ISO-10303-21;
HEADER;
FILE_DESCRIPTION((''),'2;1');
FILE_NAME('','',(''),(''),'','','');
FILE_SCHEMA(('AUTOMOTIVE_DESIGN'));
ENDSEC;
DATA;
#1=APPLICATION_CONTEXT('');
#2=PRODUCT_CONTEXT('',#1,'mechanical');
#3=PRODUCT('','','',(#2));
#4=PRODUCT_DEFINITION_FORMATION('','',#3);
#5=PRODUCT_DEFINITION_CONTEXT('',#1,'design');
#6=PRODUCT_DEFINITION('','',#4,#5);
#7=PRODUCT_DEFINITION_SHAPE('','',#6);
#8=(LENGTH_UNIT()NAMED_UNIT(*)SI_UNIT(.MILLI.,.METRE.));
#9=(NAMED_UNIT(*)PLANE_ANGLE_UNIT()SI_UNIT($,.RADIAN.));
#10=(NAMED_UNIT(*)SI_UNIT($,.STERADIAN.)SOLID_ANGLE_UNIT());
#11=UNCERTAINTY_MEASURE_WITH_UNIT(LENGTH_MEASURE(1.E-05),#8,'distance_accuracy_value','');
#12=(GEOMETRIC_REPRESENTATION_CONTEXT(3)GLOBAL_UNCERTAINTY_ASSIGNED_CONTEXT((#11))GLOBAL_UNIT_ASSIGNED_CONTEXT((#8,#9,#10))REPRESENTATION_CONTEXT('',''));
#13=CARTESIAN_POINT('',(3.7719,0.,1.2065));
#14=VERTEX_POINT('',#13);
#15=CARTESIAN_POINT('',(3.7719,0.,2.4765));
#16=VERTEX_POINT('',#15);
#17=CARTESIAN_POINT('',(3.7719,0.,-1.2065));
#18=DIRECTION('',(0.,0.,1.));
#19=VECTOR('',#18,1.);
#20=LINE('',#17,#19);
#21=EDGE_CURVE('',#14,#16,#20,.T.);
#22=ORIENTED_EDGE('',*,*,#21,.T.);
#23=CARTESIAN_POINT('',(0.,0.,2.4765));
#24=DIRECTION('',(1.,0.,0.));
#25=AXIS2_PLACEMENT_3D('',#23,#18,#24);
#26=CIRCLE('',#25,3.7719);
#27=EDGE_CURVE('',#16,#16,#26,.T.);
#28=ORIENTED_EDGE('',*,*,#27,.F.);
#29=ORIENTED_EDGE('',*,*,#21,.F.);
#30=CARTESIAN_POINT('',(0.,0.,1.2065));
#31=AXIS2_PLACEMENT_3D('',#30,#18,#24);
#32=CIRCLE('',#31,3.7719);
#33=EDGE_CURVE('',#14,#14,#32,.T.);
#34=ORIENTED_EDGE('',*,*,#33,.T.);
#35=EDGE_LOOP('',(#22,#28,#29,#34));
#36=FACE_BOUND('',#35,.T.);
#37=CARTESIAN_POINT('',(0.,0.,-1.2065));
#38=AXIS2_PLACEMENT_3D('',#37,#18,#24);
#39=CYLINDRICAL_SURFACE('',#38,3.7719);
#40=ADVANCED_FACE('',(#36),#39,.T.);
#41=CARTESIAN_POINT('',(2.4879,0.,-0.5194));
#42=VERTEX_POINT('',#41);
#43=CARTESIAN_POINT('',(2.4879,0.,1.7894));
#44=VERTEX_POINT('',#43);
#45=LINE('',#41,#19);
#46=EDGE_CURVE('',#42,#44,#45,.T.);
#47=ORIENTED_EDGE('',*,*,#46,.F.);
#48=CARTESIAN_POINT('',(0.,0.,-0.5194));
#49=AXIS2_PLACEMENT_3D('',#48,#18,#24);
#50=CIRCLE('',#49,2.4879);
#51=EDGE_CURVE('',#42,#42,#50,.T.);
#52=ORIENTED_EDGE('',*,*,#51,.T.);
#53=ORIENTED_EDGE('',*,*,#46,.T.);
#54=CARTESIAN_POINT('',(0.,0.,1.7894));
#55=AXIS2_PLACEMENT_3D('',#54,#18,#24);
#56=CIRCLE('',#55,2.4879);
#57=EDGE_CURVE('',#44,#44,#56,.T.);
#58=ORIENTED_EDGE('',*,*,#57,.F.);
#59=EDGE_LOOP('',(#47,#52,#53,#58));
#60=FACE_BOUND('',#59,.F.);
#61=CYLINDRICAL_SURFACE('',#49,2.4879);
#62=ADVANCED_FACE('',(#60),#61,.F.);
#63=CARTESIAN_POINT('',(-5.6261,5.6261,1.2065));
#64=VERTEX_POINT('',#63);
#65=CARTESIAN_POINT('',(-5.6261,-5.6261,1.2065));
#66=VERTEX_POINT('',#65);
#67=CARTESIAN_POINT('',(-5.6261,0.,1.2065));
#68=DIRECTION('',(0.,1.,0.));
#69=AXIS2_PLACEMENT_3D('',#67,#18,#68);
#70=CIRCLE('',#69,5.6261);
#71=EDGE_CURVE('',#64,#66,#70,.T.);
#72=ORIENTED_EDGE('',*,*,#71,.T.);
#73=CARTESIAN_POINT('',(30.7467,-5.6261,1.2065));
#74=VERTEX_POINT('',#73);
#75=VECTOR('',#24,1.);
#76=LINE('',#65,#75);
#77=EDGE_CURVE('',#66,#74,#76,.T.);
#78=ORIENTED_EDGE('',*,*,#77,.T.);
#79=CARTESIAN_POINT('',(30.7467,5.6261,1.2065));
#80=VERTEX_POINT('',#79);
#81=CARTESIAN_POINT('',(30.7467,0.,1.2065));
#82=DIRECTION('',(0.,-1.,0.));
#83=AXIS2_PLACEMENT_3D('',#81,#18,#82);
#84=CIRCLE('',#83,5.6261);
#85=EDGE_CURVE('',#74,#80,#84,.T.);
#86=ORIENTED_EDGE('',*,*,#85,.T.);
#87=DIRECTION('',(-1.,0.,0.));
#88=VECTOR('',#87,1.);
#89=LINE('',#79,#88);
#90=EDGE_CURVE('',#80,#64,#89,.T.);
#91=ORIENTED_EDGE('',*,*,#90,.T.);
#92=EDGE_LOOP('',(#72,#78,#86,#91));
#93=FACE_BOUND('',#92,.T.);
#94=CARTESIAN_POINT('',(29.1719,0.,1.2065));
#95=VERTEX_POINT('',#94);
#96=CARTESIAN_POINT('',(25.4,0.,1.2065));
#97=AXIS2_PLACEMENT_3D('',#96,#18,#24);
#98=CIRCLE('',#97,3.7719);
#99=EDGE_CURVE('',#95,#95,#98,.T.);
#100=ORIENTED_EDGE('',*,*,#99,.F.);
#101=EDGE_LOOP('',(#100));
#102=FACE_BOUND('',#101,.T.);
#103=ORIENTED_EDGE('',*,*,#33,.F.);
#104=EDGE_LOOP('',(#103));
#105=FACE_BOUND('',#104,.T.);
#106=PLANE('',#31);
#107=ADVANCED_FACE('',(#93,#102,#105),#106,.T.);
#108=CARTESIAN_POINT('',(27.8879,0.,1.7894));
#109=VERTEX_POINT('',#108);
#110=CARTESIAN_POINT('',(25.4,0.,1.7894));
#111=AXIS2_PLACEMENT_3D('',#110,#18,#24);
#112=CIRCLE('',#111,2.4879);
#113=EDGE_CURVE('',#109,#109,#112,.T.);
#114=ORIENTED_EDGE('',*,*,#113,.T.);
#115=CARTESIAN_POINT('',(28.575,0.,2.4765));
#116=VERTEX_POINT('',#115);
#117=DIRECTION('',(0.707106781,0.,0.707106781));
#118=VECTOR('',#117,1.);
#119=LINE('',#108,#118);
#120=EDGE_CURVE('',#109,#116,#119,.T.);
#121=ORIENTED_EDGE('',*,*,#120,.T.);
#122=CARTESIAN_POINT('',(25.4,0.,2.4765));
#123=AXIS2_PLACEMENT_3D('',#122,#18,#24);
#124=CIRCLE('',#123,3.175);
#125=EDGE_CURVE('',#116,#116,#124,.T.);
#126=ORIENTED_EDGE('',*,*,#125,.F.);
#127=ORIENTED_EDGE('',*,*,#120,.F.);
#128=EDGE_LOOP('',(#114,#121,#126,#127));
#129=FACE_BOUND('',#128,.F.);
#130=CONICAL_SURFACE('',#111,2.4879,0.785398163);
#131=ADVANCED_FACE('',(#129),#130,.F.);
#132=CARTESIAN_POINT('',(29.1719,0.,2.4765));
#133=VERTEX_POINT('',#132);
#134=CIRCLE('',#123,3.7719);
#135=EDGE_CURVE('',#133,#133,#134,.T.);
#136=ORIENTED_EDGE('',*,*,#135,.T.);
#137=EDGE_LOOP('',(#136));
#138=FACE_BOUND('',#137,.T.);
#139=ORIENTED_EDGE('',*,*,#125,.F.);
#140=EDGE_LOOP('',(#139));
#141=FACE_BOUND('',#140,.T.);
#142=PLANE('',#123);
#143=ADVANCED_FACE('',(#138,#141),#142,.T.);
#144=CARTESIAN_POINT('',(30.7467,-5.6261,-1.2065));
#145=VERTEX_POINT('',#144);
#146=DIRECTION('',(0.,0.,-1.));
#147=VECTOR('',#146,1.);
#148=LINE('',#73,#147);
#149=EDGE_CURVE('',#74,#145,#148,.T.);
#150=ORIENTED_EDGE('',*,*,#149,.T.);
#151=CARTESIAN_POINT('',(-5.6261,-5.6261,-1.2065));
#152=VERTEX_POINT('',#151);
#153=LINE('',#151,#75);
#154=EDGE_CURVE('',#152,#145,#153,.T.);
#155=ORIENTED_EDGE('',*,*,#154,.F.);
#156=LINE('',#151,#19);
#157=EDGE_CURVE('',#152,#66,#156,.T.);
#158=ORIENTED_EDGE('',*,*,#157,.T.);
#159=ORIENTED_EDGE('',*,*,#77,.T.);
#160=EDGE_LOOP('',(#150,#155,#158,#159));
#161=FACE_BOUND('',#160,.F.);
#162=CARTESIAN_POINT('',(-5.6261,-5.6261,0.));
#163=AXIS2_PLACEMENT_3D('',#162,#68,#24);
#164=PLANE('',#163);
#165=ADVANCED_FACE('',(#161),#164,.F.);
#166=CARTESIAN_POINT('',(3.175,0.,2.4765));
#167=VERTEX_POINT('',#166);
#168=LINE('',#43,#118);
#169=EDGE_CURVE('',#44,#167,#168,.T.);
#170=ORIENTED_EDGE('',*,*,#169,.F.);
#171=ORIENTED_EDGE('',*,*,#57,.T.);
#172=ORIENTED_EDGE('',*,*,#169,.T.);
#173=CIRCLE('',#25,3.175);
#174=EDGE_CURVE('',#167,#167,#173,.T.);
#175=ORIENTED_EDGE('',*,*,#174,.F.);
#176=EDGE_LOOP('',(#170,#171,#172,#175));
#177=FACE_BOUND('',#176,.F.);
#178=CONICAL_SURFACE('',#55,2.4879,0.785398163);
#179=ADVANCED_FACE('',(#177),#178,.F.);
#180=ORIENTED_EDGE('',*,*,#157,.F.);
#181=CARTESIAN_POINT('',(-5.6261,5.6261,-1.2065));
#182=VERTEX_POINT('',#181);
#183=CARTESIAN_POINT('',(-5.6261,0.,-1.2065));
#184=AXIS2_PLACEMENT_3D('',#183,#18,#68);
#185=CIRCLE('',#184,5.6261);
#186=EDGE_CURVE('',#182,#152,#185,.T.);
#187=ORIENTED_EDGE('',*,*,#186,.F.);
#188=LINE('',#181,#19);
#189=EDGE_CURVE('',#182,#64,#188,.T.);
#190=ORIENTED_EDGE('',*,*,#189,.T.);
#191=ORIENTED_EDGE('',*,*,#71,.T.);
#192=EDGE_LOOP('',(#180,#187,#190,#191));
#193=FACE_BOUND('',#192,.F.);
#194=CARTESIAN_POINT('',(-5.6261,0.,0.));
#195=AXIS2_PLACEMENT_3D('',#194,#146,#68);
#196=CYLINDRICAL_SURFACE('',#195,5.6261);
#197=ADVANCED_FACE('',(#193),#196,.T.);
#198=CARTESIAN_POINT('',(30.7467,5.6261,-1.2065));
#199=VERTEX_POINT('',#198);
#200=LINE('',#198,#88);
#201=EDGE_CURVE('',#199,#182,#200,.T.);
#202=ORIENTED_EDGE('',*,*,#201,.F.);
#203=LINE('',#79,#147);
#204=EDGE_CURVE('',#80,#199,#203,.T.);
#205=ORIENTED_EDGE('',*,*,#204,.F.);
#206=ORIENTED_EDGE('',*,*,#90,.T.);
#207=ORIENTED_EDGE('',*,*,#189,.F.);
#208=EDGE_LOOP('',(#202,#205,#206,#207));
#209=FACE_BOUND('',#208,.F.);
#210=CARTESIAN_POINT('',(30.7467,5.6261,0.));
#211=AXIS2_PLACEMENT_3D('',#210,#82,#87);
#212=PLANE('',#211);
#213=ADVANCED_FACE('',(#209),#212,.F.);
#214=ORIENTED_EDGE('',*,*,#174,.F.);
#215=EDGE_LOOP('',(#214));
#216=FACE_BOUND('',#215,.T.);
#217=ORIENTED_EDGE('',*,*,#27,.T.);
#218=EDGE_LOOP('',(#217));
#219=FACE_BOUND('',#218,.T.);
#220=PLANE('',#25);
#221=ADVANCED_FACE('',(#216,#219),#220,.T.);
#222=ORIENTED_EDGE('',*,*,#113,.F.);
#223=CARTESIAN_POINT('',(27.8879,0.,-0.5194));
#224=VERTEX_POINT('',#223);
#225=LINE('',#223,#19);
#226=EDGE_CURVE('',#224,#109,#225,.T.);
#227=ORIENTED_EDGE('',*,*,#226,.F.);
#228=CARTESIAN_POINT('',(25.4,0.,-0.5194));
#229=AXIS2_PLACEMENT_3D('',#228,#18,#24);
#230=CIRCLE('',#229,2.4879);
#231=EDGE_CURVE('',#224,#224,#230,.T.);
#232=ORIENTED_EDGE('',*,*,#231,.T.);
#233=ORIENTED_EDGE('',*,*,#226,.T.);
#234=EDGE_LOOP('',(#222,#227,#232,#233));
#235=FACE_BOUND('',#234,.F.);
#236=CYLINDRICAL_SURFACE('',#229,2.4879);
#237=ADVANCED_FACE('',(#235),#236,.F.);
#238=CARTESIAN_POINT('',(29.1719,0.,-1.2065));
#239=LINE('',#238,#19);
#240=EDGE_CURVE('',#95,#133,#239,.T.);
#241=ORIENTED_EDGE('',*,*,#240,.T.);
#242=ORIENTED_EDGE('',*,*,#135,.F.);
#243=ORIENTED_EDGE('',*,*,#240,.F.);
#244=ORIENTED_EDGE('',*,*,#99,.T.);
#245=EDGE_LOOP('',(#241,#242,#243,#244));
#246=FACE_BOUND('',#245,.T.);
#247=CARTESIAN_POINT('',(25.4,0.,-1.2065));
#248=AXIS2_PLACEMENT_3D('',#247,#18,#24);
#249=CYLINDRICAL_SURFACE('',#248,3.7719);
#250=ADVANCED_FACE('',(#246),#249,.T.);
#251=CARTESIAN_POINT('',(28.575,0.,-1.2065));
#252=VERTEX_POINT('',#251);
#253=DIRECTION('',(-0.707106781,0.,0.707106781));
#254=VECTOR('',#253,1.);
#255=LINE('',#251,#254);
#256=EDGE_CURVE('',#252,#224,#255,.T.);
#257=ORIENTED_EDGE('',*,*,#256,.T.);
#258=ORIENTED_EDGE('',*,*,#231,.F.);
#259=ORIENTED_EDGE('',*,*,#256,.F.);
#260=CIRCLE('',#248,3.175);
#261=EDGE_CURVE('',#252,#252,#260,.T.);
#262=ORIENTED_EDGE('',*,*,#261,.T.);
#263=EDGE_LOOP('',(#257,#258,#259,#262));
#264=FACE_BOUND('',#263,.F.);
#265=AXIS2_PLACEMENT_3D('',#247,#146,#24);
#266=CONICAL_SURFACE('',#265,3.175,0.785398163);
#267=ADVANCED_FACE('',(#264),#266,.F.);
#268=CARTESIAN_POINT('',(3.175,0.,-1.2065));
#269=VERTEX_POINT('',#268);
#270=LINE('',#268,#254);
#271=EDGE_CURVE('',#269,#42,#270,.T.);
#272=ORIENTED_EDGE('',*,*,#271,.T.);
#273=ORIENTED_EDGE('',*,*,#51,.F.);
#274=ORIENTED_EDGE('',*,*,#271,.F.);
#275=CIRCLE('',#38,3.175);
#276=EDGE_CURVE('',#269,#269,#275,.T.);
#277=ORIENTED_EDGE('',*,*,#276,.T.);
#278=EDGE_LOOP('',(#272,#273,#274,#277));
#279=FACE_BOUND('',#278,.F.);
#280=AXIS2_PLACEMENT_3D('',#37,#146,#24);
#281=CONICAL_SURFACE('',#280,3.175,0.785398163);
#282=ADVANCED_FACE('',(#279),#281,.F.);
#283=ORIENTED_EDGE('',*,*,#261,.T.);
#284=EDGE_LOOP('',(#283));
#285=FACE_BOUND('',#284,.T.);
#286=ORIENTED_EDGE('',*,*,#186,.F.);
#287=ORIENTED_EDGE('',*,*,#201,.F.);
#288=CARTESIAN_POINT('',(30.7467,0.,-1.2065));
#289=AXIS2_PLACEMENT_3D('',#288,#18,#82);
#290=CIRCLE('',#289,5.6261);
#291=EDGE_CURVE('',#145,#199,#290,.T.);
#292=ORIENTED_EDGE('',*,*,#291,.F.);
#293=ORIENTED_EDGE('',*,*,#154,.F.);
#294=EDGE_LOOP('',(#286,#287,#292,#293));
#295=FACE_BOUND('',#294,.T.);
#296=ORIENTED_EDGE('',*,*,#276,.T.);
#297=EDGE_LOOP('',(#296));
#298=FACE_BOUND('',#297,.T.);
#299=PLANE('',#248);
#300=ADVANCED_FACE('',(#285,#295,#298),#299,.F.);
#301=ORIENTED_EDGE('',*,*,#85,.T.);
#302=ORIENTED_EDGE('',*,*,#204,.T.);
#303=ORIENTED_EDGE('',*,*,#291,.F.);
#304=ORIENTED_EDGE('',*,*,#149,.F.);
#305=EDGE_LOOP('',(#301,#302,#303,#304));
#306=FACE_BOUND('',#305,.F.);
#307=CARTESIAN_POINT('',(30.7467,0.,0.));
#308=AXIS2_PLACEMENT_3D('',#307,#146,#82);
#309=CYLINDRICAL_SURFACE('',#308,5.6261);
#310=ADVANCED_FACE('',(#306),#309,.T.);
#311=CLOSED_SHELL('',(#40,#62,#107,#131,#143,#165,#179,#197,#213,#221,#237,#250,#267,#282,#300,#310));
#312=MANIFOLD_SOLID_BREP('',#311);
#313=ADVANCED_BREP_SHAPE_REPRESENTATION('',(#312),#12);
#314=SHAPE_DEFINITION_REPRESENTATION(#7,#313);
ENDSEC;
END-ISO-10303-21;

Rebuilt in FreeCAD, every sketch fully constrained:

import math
import FreeCAD as App
import Part
import Sketcher

V = App.Vector
Q = App.Units.Quantity

doc = App.newDocument("Part")
body = doc.addObject("PartDesign::Body", "Body")

# Sketch on XY plane
sketch1 = body.newObject("Sketcher::SketchObject", "Sketch")
sketch1.AttachmentSupport = (doc.getObject("XY_Plane"), [""])
sketch1.MapMode = "FlatFace"
sketch1.addGeometry(Part.LineSegment(V(31, 6, 0), V(-6, 6, 0)), False)
sketch1.addGeometry(Part.ArcOfCircle(Part.Circle(V(-6, 0, 0), V(0, 0, 1), 6), math.radians(90), math.radians(270)), False)
sketch1.addGeometry(Part.LineSegment(V(-6, -6, 0), V(31, -6, 0)), False)
sketch1.addGeometry(Part.ArcOfCircle(Part.Circle(V(31, 0, 0), V(0, 0, 1), 6), math.radians(-90), math.radians(90)), False)
sketch1.addConstraint(Sketcher.Constraint("Tangent", 0, 2, 1, 1))
sketch1.addConstraint(Sketcher.Constraint("Tangent", 1, 2, 2, 1))
sketch1.addConstraint(Sketcher.Constraint("Tangent", 2, 2, 3, 1))
sketch1.addConstraint(Sketcher.Constraint("Tangent", 3, 2, 0, 1))
sketch1.addConstraint(Sketcher.Constraint("Horizontal", 0))
sketch1.addConstraint(Sketcher.Constraint("Horizontal", 2))
sketch1.addConstraint(Sketcher.Constraint("PointOnObject", 1, 3, -1))
sketch1.addConstraint(Sketcher.Constraint("Radius", 1, Q("0.2215 in")))
sketch1.addConstraint(Sketcher.Constraint("DistanceX", 0, 2, 0, 1, Q("1.432 in")))
sketch1.addConstraint(Sketcher.Constraint("DistanceX", 1, 3, -1, 1, Q("0.2215 in")))
pad1 = body.newObject("PartDesign::Pad", "Pad")
pad1.Profile = sketch1
pad1.Length = Q("0.095 in")
pad1.Midplane = True

# Sketch on XZ plane
sketch2 = body.newObject("Sketcher::SketchObject", "Sketch001")
sketch2.AttachmentSupport = (doc.getObject("XZ_Plane"), [""])
sketch2.MapMode = "FlatFace"
sketch2.addGeometry(Part.LineSegment(V(0, -1.2, 0), V(0, 2.5, 0)), False)
sketch2.addGeometry(Part.LineSegment(V(0, 2.5, 0), V(3.8, 2.5, 0)), False)
sketch2.addGeometry(Part.LineSegment(V(3.8, 2.5, 0), V(3.8, -1.2, 0)), False)
sketch2.addGeometry(Part.LineSegment(V(3.8, -1.2, 0), V(0, -1.2, 0)), False)
sketch2.addConstraint(Sketcher.Constraint("Coincident", 0, 2, 1, 1))
sketch2.addConstraint(Sketcher.Constraint("Coincident", 1, 2, 2, 1))
sketch2.addConstraint(Sketcher.Constraint("Coincident", 2, 2, 3, 1))
sketch2.addConstraint(Sketcher.Constraint("Coincident", 3, 2, 0, 1))
sketch2.addConstraint(Sketcher.Constraint("Vertical", 0))
sketch2.addConstraint(Sketcher.Constraint("Horizontal", 1))
sketch2.addConstraint(Sketcher.Constraint("Vertical", 2))
sketch2.addConstraint(Sketcher.Constraint("Horizontal", 3))
sketch2.addConstraint(Sketcher.Constraint("PointOnObject", 0, 2, -2))
sketch2.addConstraint(Sketcher.Constraint("DistanceY", 0, 1, 0, 2, Q("0.145 in")))
sketch2.addConstraint(Sketcher.Constraint("DistanceX", 1, 1, 1, 2, Q("0.1485 in")))
sketch2.addConstraint(Sketcher.Constraint("DistanceY", -1, 1, 0, 2, Q("0.0975 in")))
revolution = body.newObject("PartDesign::Revolution", "Revolution")
revolution.Profile = sketch2
revolution.ReferenceAxis = (sketch2, ["V_Axis"])
revolution.Angle = 360

# Sketch on XZ plane
sketch3 = body.newObject("Sketcher::SketchObject", "Sketch002")
sketch3.AttachmentSupport = (doc.getObject("XZ_Plane"), [""])
sketch3.MapMode = "FlatFace"
sketch3.addGeometry(Part.LineSegment(V(25.4, -1.2, 0), V(25.4, 2.5, 0)), False)
sketch3.addGeometry(Part.LineSegment(V(25.4, 2.5, 0), V(29.2, 2.5, 0)), False)
sketch3.addGeometry(Part.LineSegment(V(29.2, 2.5, 0), V(29.2, -1.2, 0)), False)
sketch3.addGeometry(Part.LineSegment(V(29.2, -1.2, 0), V(25.4, -1.2, 0)), False)
sketch3.addGeometry(Part.LineSegment(V(25.4, -1.2, 0), V(25.4, 2.5, 0)), True)  # axis
sketch3.addConstraint(Sketcher.Constraint("Coincident", 0, 2, 1, 1))
sketch3.addConstraint(Sketcher.Constraint("Coincident", 1, 2, 2, 1))
sketch3.addConstraint(Sketcher.Constraint("Coincident", 2, 2, 3, 1))
sketch3.addConstraint(Sketcher.Constraint("Coincident", 3, 2, 0, 1))
sketch3.addConstraint(Sketcher.Constraint("Vertical", 0))
sketch3.addConstraint(Sketcher.Constraint("Horizontal", 1))
sketch3.addConstraint(Sketcher.Constraint("Vertical", 2))
sketch3.addConstraint(Sketcher.Constraint("Horizontal", 3))
sketch3.addConstraint(Sketcher.Constraint("Vertical", 4))
sketch3.addConstraint(Sketcher.Constraint("Coincident", 4, 1, 3, 2))
sketch3.addConstraint(Sketcher.Constraint("Horizontal", 1, 2, 4, 2))
sketch3.addConstraint(Sketcher.Constraint("DistanceX", -1, 1, 0, 2, Q("1 in")))
sketch3.addConstraint(Sketcher.Constraint("DistanceY", 0, 1, 0, 2, Q("0.145 in")))
sketch3.addConstraint(Sketcher.Constraint("DistanceX", 1, 1, 1, 2, Q("0.1485 in")))
sketch3.addConstraint(Sketcher.Constraint("DistanceY", -1, 1, 0, 2, Q("0.0975 in")))
revolution2 = body.newObject("PartDesign::Revolution", "Revolution001")
revolution2.Profile = sketch3
revolution2.ReferenceAxis = (sketch3, ["Axis0"])
revolution2.Angle = 360

# Sketch on XZ plane
sketch4 = body.newObject("Sketcher::SketchObject", "Sketch003")
sketch4.AttachmentSupport = (doc.getObject("XZ_Plane"), [""])
sketch4.MapMode = "FlatFace"
sketch4.addGeometry(Part.LineSegment(V(0, -1.2, 0), V(0, 2.5, 0)), False)
sketch4.addGeometry(Part.LineSegment(V(0, 2.5, 0), V(3.2, 2.5, 0)), False)
sketch4.addGeometry(Part.LineSegment(V(3.2, 2.5, 0), V(2.5, 1.8, 0)), False)
sketch4.addGeometry(Part.LineSegment(V(2.5, 1.8, 0), V(2.5, -0.5, 0)), False)
sketch4.addGeometry(Part.LineSegment(V(2.5, -0.5, 0), V(3.2, -1.2, 0)), False)
sketch4.addGeometry(Part.LineSegment(V(3.2, -1.2, 0), V(0, -1.2, 0)), False)
sketch4.addConstraint(Sketcher.Constraint("Coincident", 0, 2, 1, 1))
sketch4.addConstraint(Sketcher.Constraint("Coincident", 1, 2, 2, 1))
sketch4.addConstraint(Sketcher.Constraint("Coincident", 2, 2, 3, 1))
sketch4.addConstraint(Sketcher.Constraint("Coincident", 3, 2, 4, 1))
sketch4.addConstraint(Sketcher.Constraint("Coincident", 4, 2, 5, 1))
sketch4.addConstraint(Sketcher.Constraint("Coincident", 5, 2, 0, 1))
sketch4.addConstraint(Sketcher.Constraint("Vertical", 0))
sketch4.addConstraint(Sketcher.Constraint("Horizontal", 1))
sketch4.addConstraint(Sketcher.Constraint("Vertical", 3))
sketch4.addConstraint(Sketcher.Constraint("Horizontal", 5))
sketch4.addConstraint(Sketcher.Constraint("PointOnObject", 0, 2, -2))
sketch4.addConstraint(Sketcher.Constraint("Perpendicular", 2, 4))
sketch4.addConstraint(Sketcher.Constraint("Vertical", 1, 2, 4, 2))
sketch4.addConstraint(Sketcher.Constraint("Equal", 2, 4))
sketch4.addConstraint(Sketcher.Constraint("DistanceX", 1, 1, 1, 2, Q("0.125 in")))
sketch4.addConstraint(Sketcher.Constraint("DistanceY", 0, 1, 0, 2, Q("0.145 in")))
sketch4.addConstraint(Sketcher.Constraint("DistanceY", 3, 2, 3, 1, Q("0.0909 in")))
sketch4.addConstraint(Sketcher.Constraint("DistanceY", -1, 1, 0, 2, Q("0.0975 in")))
groove = body.newObject("PartDesign::Groove", "Groove")
groove.Profile = sketch4
groove.ReferenceAxis = (sketch4, ["V_Axis"])
groove.Angle = 360

# Sketch on XZ plane
sketch5 = body.newObject("Sketcher::SketchObject", "Sketch004")
sketch5.AttachmentSupport = (doc.getObject("XZ_Plane"), [""])
sketch5.MapMode = "FlatFace"
sketch5.addGeometry(Part.LineSegment(V(25.4, -1.2, 0), V(25.4, 2.5, 0)), False)
sketch5.addGeometry(Part.LineSegment(V(25.4, 2.5, 0), V(28.6, 2.5, 0)), False)
sketch5.addGeometry(Part.LineSegment(V(28.6, 2.5, 0), V(27.9, 1.8, 0)), False)
sketch5.addGeometry(Part.LineSegment(V(27.9, 1.8, 0), V(27.9, -0.5, 0)), False)
sketch5.addGeometry(Part.LineSegment(V(27.9, -0.5, 0), V(28.6, -1.2, 0)), False)
sketch5.addGeometry(Part.LineSegment(V(28.6, -1.2, 0), V(25.4, -1.2, 0)), False)
sketch5.addGeometry(Part.LineSegment(V(25.4, -1.2, 0), V(25.4, 2.5, 0)), True)  # axis
sketch5.addConstraint(Sketcher.Constraint("Coincident", 0, 2, 1, 1))
sketch5.addConstraint(Sketcher.Constraint("Coincident", 1, 2, 2, 1))
sketch5.addConstraint(Sketcher.Constraint("Coincident", 2, 2, 3, 1))
sketch5.addConstraint(Sketcher.Constraint("Coincident", 3, 2, 4, 1))
sketch5.addConstraint(Sketcher.Constraint("Coincident", 4, 2, 5, 1))
sketch5.addConstraint(Sketcher.Constraint("Coincident", 5, 2, 0, 1))
sketch5.addConstraint(Sketcher.Constraint("Vertical", 0))
sketch5.addConstraint(Sketcher.Constraint("Horizontal", 1))
sketch5.addConstraint(Sketcher.Constraint("Vertical", 3))
sketch5.addConstraint(Sketcher.Constraint("Horizontal", 5))
sketch5.addConstraint(Sketcher.Constraint("Vertical", 6))
sketch5.addConstraint(Sketcher.Constraint("Coincident", 6, 1, 5, 2))
sketch5.addConstraint(Sketcher.Constraint("Perpendicular", 2, 4))
sketch5.addConstraint(Sketcher.Constraint("Horizontal", 1, 2, 6, 2))
sketch5.addConstraint(Sketcher.Constraint("Vertical", 1, 2, 4, 2))
sketch5.addConstraint(Sketcher.Constraint("Equal", 2, 4))
sketch5.addConstraint(Sketcher.Constraint("DistanceX", -1, 1, 0, 2, Q("1 in")))
sketch5.addConstraint(Sketcher.Constraint("DistanceX", 1, 1, 1, 2, Q("0.125 in")))
sketch5.addConstraint(Sketcher.Constraint("DistanceY", 0, 1, 0, 2, Q("0.145 in")))
sketch5.addConstraint(Sketcher.Constraint("DistanceY", 3, 2, 3, 1, Q("0.0909 in")))
sketch5.addConstraint(Sketcher.Constraint("DistanceY", -1, 1, 0, 2, Q("0.0975 in")))
groove2 = body.newObject("PartDesign::Groove", "Groove001")
groove2.Profile = sketch5
groove2.ReferenceAxis = (sketch5, ["Axis0"])
groove2.Angle = 360

doc.recompute()
